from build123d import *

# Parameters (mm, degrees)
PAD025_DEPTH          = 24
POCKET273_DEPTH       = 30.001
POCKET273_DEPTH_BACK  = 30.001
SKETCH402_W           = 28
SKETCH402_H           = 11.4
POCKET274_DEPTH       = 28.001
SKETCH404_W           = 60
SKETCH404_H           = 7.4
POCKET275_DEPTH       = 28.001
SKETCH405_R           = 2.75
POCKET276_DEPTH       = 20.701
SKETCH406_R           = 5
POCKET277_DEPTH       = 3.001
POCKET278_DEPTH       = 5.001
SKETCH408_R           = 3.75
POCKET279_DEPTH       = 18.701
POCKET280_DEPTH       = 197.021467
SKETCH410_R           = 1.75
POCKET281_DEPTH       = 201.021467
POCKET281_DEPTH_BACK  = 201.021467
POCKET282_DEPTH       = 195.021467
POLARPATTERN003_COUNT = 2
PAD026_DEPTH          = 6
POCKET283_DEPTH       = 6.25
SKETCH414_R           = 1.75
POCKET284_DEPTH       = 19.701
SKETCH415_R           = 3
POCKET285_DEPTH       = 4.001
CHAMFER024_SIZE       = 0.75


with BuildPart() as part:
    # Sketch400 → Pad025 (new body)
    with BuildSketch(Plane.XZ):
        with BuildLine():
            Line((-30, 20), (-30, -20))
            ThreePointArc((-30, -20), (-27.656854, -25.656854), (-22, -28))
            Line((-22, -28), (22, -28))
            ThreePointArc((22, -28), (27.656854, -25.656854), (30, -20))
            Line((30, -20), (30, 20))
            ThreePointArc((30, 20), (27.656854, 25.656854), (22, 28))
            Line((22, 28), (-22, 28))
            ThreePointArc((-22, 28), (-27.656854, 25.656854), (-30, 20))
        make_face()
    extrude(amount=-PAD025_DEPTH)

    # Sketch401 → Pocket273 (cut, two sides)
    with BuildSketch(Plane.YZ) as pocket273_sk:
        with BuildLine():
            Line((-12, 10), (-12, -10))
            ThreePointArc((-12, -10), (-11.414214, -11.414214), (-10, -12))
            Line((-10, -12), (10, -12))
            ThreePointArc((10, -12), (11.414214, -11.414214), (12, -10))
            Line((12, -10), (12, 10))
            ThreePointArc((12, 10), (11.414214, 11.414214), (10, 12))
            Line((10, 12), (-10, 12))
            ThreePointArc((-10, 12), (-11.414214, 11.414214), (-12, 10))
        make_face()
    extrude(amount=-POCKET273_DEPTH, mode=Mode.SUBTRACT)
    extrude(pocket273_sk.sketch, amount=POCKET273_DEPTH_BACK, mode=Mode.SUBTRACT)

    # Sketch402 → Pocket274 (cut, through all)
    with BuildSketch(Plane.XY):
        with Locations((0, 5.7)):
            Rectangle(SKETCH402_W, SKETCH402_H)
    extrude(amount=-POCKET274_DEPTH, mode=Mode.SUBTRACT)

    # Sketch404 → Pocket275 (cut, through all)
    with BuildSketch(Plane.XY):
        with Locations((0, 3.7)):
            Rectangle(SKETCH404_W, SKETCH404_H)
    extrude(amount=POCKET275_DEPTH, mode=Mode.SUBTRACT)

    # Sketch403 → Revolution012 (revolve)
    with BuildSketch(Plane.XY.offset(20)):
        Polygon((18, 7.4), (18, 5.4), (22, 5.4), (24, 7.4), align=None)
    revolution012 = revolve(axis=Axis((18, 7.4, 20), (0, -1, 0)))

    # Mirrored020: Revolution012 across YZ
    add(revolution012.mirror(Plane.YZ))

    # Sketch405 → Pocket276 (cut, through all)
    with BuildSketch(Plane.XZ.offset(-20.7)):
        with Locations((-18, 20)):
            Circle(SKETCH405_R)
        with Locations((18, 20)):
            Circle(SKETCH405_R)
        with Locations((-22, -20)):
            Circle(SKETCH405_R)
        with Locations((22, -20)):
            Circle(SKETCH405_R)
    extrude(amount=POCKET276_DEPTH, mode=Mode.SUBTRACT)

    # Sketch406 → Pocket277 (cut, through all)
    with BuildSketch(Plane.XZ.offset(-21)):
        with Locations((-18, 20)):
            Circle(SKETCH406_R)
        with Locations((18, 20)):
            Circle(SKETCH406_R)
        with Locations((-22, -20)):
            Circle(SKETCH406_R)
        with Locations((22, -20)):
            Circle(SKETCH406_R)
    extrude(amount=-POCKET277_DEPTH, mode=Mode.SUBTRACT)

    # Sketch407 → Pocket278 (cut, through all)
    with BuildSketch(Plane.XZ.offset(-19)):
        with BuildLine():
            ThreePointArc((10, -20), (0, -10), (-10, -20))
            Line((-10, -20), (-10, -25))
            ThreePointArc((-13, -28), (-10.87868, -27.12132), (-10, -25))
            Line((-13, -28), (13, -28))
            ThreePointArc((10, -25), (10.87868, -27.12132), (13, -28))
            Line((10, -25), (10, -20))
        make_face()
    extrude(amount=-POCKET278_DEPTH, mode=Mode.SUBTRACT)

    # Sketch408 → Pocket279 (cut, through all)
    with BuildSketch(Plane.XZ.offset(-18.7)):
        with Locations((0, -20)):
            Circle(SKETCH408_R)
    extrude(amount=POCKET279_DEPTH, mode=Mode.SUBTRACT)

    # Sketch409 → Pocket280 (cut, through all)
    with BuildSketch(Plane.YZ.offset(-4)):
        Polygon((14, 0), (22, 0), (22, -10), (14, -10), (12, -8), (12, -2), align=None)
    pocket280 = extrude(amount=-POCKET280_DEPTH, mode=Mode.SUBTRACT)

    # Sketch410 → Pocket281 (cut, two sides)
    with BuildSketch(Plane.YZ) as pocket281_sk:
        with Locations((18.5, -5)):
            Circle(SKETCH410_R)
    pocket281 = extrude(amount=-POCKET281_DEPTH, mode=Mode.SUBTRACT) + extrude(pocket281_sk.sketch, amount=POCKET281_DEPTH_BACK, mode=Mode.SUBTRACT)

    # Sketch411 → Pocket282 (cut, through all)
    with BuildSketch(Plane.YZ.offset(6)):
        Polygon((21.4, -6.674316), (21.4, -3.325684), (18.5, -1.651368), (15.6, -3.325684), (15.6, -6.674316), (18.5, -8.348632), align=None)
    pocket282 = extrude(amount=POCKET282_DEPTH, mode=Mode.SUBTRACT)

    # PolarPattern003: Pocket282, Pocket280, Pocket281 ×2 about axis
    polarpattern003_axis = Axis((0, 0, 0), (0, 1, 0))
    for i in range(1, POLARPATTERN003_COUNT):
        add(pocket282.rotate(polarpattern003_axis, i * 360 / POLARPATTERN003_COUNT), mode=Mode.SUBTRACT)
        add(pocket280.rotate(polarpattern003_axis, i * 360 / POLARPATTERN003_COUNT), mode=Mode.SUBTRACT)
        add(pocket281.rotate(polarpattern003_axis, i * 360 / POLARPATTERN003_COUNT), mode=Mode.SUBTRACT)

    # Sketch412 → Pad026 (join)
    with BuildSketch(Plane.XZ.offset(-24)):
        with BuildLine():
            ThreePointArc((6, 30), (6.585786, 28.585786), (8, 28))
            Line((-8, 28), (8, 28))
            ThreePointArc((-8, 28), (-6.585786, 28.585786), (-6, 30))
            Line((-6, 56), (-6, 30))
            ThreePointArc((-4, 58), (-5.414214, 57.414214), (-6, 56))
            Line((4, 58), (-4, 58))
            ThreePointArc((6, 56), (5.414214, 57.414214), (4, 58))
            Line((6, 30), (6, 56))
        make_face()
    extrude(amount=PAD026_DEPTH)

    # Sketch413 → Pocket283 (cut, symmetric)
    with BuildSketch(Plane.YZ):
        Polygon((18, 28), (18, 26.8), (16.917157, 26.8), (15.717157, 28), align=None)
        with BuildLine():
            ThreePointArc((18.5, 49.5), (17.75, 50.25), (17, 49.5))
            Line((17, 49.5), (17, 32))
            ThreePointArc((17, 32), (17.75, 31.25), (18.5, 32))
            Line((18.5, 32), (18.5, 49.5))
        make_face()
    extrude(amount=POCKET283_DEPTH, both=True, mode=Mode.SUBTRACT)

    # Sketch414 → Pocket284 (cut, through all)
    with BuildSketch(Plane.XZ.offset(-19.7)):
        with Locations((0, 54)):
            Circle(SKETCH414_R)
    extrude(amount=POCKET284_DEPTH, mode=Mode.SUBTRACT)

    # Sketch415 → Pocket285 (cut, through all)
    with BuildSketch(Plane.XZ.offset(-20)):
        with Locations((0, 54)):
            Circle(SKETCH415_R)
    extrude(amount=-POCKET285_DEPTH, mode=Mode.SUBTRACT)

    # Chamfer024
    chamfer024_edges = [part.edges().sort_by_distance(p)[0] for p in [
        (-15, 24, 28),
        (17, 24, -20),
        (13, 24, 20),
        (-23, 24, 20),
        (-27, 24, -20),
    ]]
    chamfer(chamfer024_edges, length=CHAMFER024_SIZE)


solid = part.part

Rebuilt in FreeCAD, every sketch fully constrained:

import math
import FreeCAD as App
import Part
import Sketcher
Q = App.Units.Quantity


def edges_at(feature, points):
    """Names of the edges that pass closest to the given points."""
    edges = feature.Shape.Edges
    near = lambda p: min(range(len(edges)), key=lambda i: edges[i].distToShape(Part.Vertex(*p))[0])
    return sorted({f"Edge{near(p) + 1}" for p in points})


def add_polygon(sketch, points):
    """Adds a closed chain of lines whose ends are joined by coincident constraints."""
    first, n = sketch.GeometryCount, len(points)
    for a, b in zip(points, points[1:] + points[:1]):
        sketch.addGeometry(Part.LineSegment(App.Vector(*a, 0), App.Vector(*b, 0)), False)
    for i in range(n):
        sketch.addConstraint(Sketcher.Constraint("Coincident", first + i, 2, first + (i + 1) % n, 1))

doc = App.newDocument("Part")
body = doc.addObject("PartDesign::Body", "Body")

sketch1 = body.newObject("Sketcher::SketchObject", "Sketch")
sketch1.AttachmentSupport = (doc.getObject("XZ_Plane"), [""])
sketch1.MapMode = "FlatFace"
sketch1.addGeometry(Part.LineSegment(App.Vector(-30, 20, 0), App.Vector(-30, -20, 0)), False)
sketch1.addGeometry(Part.ArcOfCircle(Part.Circle(App.Vector(-21.999999, -19.999999, 0), App.Vector(0, 0, 1), 8.000001), math.radians(-179.999994), math.radians(-90.000006)), False)
sketch1.addGeometry(Part.LineSegment(App.Vector(-22, -28, 0), App.Vector(22, -28, 0)), False)
sketch1.addGeometry(Part.ArcOfCircle(Part.Circle(App.Vector(21.999999, -19.999999, 0), App.Vector(0, 0, 1), 8.000001), math.radians(-89.999994), math.radians(-0.000006)), False)
sketch1.addGeometry(Part.LineSegment(App.Vector(30, -20, 0), App.Vector(30, 20, 0)), False)
sketch1.addGeometry(Part.ArcOfCircle(Part.Circle(App.Vector(21.999999, 19.999999, 0), App.Vector(0, 0, 1), 8.000001), math.radians(0.000006), math.radians(89.999994)), False)
sketch1.addGeometry(Part.LineSegment(App.Vector(22, 28, 0), App.Vector(-22, 28, 0)), False)
sketch1.addGeometry(Part.ArcOfCircle(Part.Circle(App.Vector(-21.999999, 19.999999, 0), App.Vector(0, 0, 1), 8.000001), math.radians(90.000006), math.radians(179.999994)), False)
sketch1.addConstraint(Sketcher.Constraint("Tangent", 0, 2, 1, 1))
sketch1.addConstraint(Sketcher.Constraint("Tangent", 1, 2, 2, 1))
sketch1.addConstraint(Sketcher.Constraint("Tangent", 2, 2, 3, 1))
sketch1.addConstraint(Sketcher.Constraint("Tangent", 3, 2, 4, 1))
sketch1.addConstraint(Sketcher.Constraint("Tangent", 4, 2, 5, 1))
sketch1.addConstraint(Sketcher.Constraint("Tangent", 5, 2, 6, 1))
sketch1.addConstraint(Sketcher.Constraint("Tangent", 6, 2, 7, 1))
sketch1.addConstraint(Sketcher.Constraint("Tangent", 7, 2, 0, 1))
sketch1.addConstraint(Sketcher.Constraint("Vertical", 0))
sketch1.addConstraint(Sketcher.Constraint("Horizontal", 2))
sketch1.addConstraint(Sketcher.Constraint("Vertical", 4))
sketch1.addConstraint(Sketcher.Constraint("Horizontal", 6))
sketch1.addConstraint(Sketcher.Constraint("Equal", 1, 3))
sketch1.addConstraint(Sketcher.Constraint("Equal", 3, 5))
sketch1.addConstraint(Sketcher.Constraint("Equal", 5, 7))
sketch1.addConstraint(Sketcher.Constraint("Symmetric", 1, 3, 5, 3, -1, 1))
sketch1.addConstraint(Sketcher.Constraint("Radius", 1, Q("8.000001 mm")))
sketch1.addConstraint(Sketcher.Constraint("DistanceX", 2, 1, 2, 2, Q("44 mm")))
sketch1.addConstraint(Sketcher.Constraint("DistanceY", 0, 2, 0, 1, Q("40 mm")))
pad1 = body.newObject("PartDesign::Pad", "Pad")
pad1.Profile = sketch1
pad1.Length = 24
pad1.Reversed = True

sketch2 = body.newObject("Sketcher::SketchObject", "Sketch001")
sketch2.AttachmentSupport = (doc.getObject("YZ_Plane"), [""])
sketch2.MapMode = "FlatFace"
sketch2.addGeometry(Part.LineSegment(App.Vector(-12, 10, 0), App.Vector(-12, -10, 0)), False)
sketch2.addGeometry(Part.ArcOfCircle(Part.Circle(App.Vector(-10.000001, -10.000001, 0), App.Vector(0, 0, 1), 1.999999), math.radians(179.999957), math.radians(270.000043)), False)
sketch2.addGeometry(Part.LineSegment(App.Vector(-10, -12, 0), App.Vector(10, -12, 0)), False)
sketch2.addGeometry(Part.ArcOfCircle(Part.Circle(App.Vector(10.000001, -10.000001, 0), App.Vector(0, 0, 1), 1.999999), math.radians(-90.000043), math.radians(0.000043)), False)
sketch2.addGeometry(Part.LineSegment(App.Vector(12, -10, 0), App.Vector(12, 10, 0)), False)
sketch2.addGeometry(Part.ArcOfCircle(Part.Circle(App.Vector(10.000001, 10.000001, 0), App.Vector(0, 0, 1), 1.999999), math.radians(-0.000043), math.radians(90.000043)), False)
sketch2.addGeometry(Part.LineSegment(App.Vector(10, 12, 0), App.Vector(-10, 12, 0)), False)
sketch2.addGeometry(Part.ArcOfCircle(Part.Circle(App.Vector(-10.000001, 10.000001, 0), App.Vector(0, 0, 1), 1.999999), math.radians(89.999957), math.radians(180.000043)), False)
sketch2.addConstraint(Sketcher.Constraint("Tangent", 0, 2, 1, 1))
sketch2.addConstraint(Sketcher.Constraint("Tangent", 1, 2, 2, 1))
sketch2.addConstraint(Sketcher.Constraint("Tangent", 2, 2, 3, 1))
sketch2.addConstraint(Sketcher.Constraint("Tangent", 3, 2, 4, 1))
sketch2.addConstraint(Sketcher.Constraint("Tangent", 4, 2, 5, 1))
sketch2.addConstraint(Sketcher.Constraint("Tangent", 5, 2, 6, 1))
sketch2.addConstraint(Sketcher.Constraint("Tangent", 6, 2, 7, 1))
sketch2.addConstraint(Sketcher.Constraint("Tangent", 7, 2, 0, 1))
sketch2.addConstraint(Sketcher.Constraint("Vertical", 0))
sketch2.addConstraint(Sketcher.Constraint("Horizontal", 2))
sketch2.addConstraint(Sketcher.Constraint("Vertical", 4))
sketch2.addConstraint(Sketcher.Constraint("Horizontal", 6))
sketch2.addConstraint(Sketcher.Constraint("Equal", 1, 3))
sketch2.addConstraint(Sketcher.Constraint("Equal", 3, 5))
sketch2.addConstraint(Sketcher.Constraint("Equal", 5, 7))
sketch2.addConstraint(Sketcher.Constraint("Symmetric", 1, 3, 5, 3, -1, 1))
sketch2.addConstraint(Sketcher.Constraint("Equal", 6, 0))
sketch2.addConstraint(Sketcher.Constraint("Radius", 1, Q("1.999999 mm")))
sketch2.addConstraint(Sketcher.Constraint("DistanceX", 2, 1, 2, 2, Q("20 mm")))
pocket1 = body.newObject("PartDesign::Pocket", "Pocket")
pocket1.Profile = sketch2
pocket1.Type = "ThroughAll"
pocket1.Midplane = True

sketch3 = body.newObject("Sketcher::SketchObject", "Sketch002")
sketch3.AttachmentSupport = (doc.getObject("XY_Plane"), [""])
sketch3.MapMode = "FlatFace"
add_polygon(sketch3, [(-14, 11.4), (-14, 0), (14, 0), (14, 11.4)])
sketch3.addConstraint(Sketcher.Constraint("Vertical", 0))
sketch3.addConstraint(Sketcher.Constraint("Horizontal", 1))
sketch3.addConstraint(Sketcher.Constraint("Vertical", 2))
sketch3.addConstraint(Sketcher.Constraint("Horizontal", 3))
sketch3.addConstraint(Sketcher.Constraint("Symmetric", 0, 2, 1, 2, -1, 1))
sketch3.addConstraint(Sketcher.Constraint("DistanceX", 1, 1, 1, 2, Q("28 mm")))
sketch3.addConstraint(Sketcher.Constraint("DistanceY", 0, 2, 0, 1, Q("11.4 mm")))
pocket2 = body.newObject("PartDesign::Pocket", "Pocket001")
pocket2.Profile = sketch3
pocket2.Type = "ThroughAll"

sketch4 = body.newObject("Sketcher::SketchObject", "Sketch003")
sketch4.AttachmentSupport = (doc.getObject("XY_Plane"), [""])
sketch4.MapMode = "FlatFace"
add_polygon(sketch4, [(-30, 7.4), (-30, 0), (30, 0), (30, 7.4)])
sketch4.addConstraint(Sketcher.Constraint("Vertical", 0))
sketch4.addConstraint(Sketcher.Constraint("Horizontal", 1))
sketch4.addConstraint(Sketcher.Constraint("Vertical", 2))
sketch4.addConstraint(Sketcher.Constraint("Horizontal", 3))
sketch4.addConstraint(Sketcher.Constraint("Symmetric", 0, 2, 1, 2, -1, 1))
sketch4.addConstraint(Sketcher.Constraint("DistanceX", 1, 1, 1, 2, Q("60 mm")))
sketch4.addConstraint(Sketcher.Constraint("DistanceY", 0, 2, 0, 1, Q("7.4 mm")))
pocket3 = body.newObject("PartDesign::Pocket", "Pocket002")
pocket3.Profile = sketch4
pocket3.Type = "ThroughAll"
pocket3.Reversed = True

sketch5 = body.newObject("Sketcher::SketchObject", "Sketch004")
sketch5.AttachmentSupport = (doc.getObject("XY_Plane"), [""])
sketch5.MapMode = "FlatFace"
sketch5.AttachmentOffset = App.Placement(App.Vector(0, 0, 20), App.Rotation())
add_polygon(sketch5, [(18, 7.4), (18, 5.4), (22, 5.4), (24, 7.4)])
sketch5.addGeometry(Part.LineSegment(App.Vector(18, 7.4, 0), App.Vector(18, 5.4, 0)), True)
sketch5.addConstraint(Sketcher.Constraint("Vertical", 0))
sketch5.addConstraint(Sketcher.Constraint("Horizontal", 1))
sketch5.addConstraint(Sketcher.Constraint("Horizontal", 3))
sketch5.addConstraint(Sketcher.Constraint("Vertical", 4))
sketch5.addConstraint(Sketcher.Constraint("Coincident", 4, 1, 3, 2))
sketch5.addConstraint(Sketcher.Constraint("Horizontal", 1, 2, 4, 2))
sketch5.addConstraint(Sketcher.Constraint("DistanceX", 1, 1, 1, 2, Q("4 mm")))
sketch5.addConstraint(Sketcher.Constraint("DistanceX", 3, 2, 3, 1, Q("6 mm")))
sketch5.addConstraint(Sketcher.Constraint("DistanceY", 0, 2, 0, 1, Q("2 mm")))
sketch5.addConstraint(Sketcher.Constraint("DistanceX", -1, 1, 0, 2, Q("18 mm")))
sketch5.addConstraint(Sketcher.Constraint("DistanceY", -1, 1, 0, 2, Q("5.4 mm")))
revolution = body.newObject("PartDesign::Revolution", "Revolution")
revolution.Profile = sketch5
revolution.ReferenceAxis = (sketch5, ["Axis0"])
revolution.Angle = 360
doc.recompute()

mirrored = body.newObject("PartDesign::Mirrored", "Mirrored")
mirrored.Originals = [revolution]
mirrored.MirrorPlane = (doc.getObject("YZ_Plane"), [""])
body.Tip = mirrored

sketch6 = body.newObject("Sketcher::SketchObject", "Sketch005")
sketch6.AttachmentSupport = (doc.getObject("XZ_Plane"), [""])
sketch6.MapMode = "FlatFace"
sketch6.AttachmentOffset = App.Placement(App.Vector(0, 0, -20.7), App.Rotation())
sketch6.addGeometry(Part.Circle(App.Vector(-18, 20, 0), App.Vector(0, 0, 1), 2.75), False)
sketch6.addGeometry(Part.Circle(App.Vector(18, 20, 0), App.Vector(0, 0, 1), 2.75), False)
sketch6.addGeometry(Part.Circle(App.Vector(-22, -20, 0), App.Vector(0, 0, 1), 2.75), False)
sketch6.addGeometry(Part.Circle(App.Vector(22, -20, 0), App.Vector(0, 0, 1), 2.75), False)
sketch6.addConstraint(Sketcher.Constraint("Equal", 0, 1))
sketch6.addConstraint(Sketcher.Constraint("Equal", 1, 2))
sketch6.addConstraint(Sketcher.Constraint("Equal", 2, 3))
sketch6.addConstraint(Sketcher.Constraint("Symmetric", 0, 3, 1, 3, -2))
sketch6.addConstraint(Sketcher.Constraint("Symmetric", 2, 3, 3, 3, -2))
sketch6.addConstraint(Sketcher.Constraint("Diameter", 0, Q("5.5 mm")))
sketch6.addConstraint(Sketcher.Constraint("DistanceX", 0, 3, -1, 1, Q("18 mm")))
sketch6.addConstraint(Sketcher.Constraint("DistanceY", -1, 1, 0, 3, Q("20 mm")))
sketch6.addConstraint(Sketcher.Constraint("DistanceX", 2, 3, -1, 1, Q("22 mm")))
sketch6.addConstraint(Sketcher.Constraint("DistanceY", 2, 3, -1, 1, Q("20 mm")))
pocket4 = body.newObject("PartDesign::Pocket", "Pocket003")
pocket4.Profile = sketch6
pocket4.Type = "ThroughAll"
pocket4.Reversed = True

sketch7 = body.newObject("Sketcher::SketchObject", "Sketch006")
sketch7.AttachmentSupport = (doc.getObject("XZ_Plane"), [""])
sketch7.MapMode = "FlatFace"
sketch7.AttachmentOffset = App.Placement(App.Vector(0, 0, -21), App.Rotation())
sketch7.addGeometry(Part.Circle(App.Vector(-18, 20, 0), App.Vector(0, 0, 1), 5), False)
sketch7.addGeometry(Part.Circle(App.Vector(18, 20, 0), App.Vector(0, 0, 1), 5), False)
sketch7.addGeometry(Part.Circle(App.Vector(-22, -20, 0), App.Vector(0, 0, 1), 5), False)
sketch7.addGeometry(Part.Circle(App.Vector(22, -20, 0), App.Vector(0, 0, 1), 5), False)
sketch7.addConstraint(Sketcher.Constraint("Equal", 0, 1))
sketch7.addConstraint(Sketcher.Constraint("Equal", 1, 2))
sketch7.addConstraint(Sketcher.Constraint("Equal", 2, 3))
sketch7.addConstraint(Sketcher.Constraint("Symmetric", 0, 3, 1, 3, -2))
sketch7.addConstraint(Sketcher.Constraint("Symmetric", 2, 3, 3, 3, -2))
sketch7.addConstraint(Sketcher.Constraint("Diameter", 0, Q("10 mm")))
sketch7.addConstraint(Sketcher.Constraint("DistanceX", 0, 3, -1, 1, Q("18 mm")))
sketch7.addConstraint(Sketcher.Constraint("DistanceY", -1, 1, 0, 3, Q("20 mm")))
sketch7.addConstraint(Sketcher.Constraint("DistanceX", 2, 3, -1, 1, Q("22 mm")))
sketch7.addConstraint(Sketcher.Constraint("DistanceY", 2, 3, -1, 1, Q("20 mm")))
pocket5 = body.newObject("PartDesign::Pocket", "Pocket004")
pocket5.Profile = sketch7
pocket5.Type = "ThroughAll"

sketch8 = body.newObject("Sketcher::SketchObject", "Sketch007")
sketch8.AttachmentSupport = (doc.getObject("XZ_Plane"), [""])
sketch8.MapMode = "FlatFace"
sketch8.AttachmentOffset = App.Placement(App.Vector(0, 0, -19), App.Rotation())
sketch8.addGeometry(Part.ArcOfCircle(Part.Circle(App.Vector(0, -20, 0), App.Vector(0, 0, 1), 10), math.radians(0), math.radians(180)), False)
sketch8.addGeometry(Part.LineSegment(App.Vector(-10, -20, 0), App.Vector(-10, -25, 0)), False)
sketch8.addGeometry(Part.ArcOfCircle(Part.Circle(App.Vector(-13.000001, -24.999999, 0), App.Vector(0, 0, 1), 3.000001), math.radians(-89.999978), math.radians(-0.000022)), False)
sketch8.addGeometry(Part.LineSegment(App.Vector(-13, -28, 0), App.Vector(13, -28, 0)), False)
sketch8.addGeometry(Part.ArcOfCircle(Part.Circle(App.Vector(13.000001, -24.999999, 0), App.Vector(0, 0, 1), 3.000001), math.radians(-179.999978), math.radians(-90.000022)), False)
sketch8.addGeometry(Part.LineSegment(App.Vector(10, -25, 0), App.Vector(10, -20, 0)), False)
sketch8.addConstraint(Sketcher.Constraint("Tangent", 0, 2, 1, 1))
sketch8.addConstraint(Sketcher.Constraint("Tangent", 1, 2, 2, 2))
sketch8.addConstraint(Sketcher.Constraint("Tangent", 2, 1, 3, 1))
sketch8.addConstraint(Sketcher.Constraint("Tangent", 3, 2, 4, 2))
sketch8.addConstraint(Sketcher.Constraint("Tangent", 4, 1, 5, 1))
sketch8.addConstraint(Sketcher.Constraint("Tangent", 5, 2, 0, 1))
sketch8.addConstraint(Sketcher.Constraint("Vertical", 1))
sketch8.addConstraint(Sketcher.Constraint("Horizontal", 3))
sketch8.addConstraint(Sketcher.Constraint("Vertical", 5))
sketch8.addConstraint(Sketcher.Constraint("Equal", 2, 4))
sketch8.addConstraint(Sketcher.Constraint("PointOnObject", 0, 3, -2))
sketch8.addConstraint(Sketcher.Constraint("Radius", 0, Q("10 mm")))
sketch8.addConstraint(Sketcher.Constraint("Radius", 2, Q("3.000001 mm")))
sketch8.addConstraint(Sketcher.Constraint("DistanceY", 1, 2, 1, 1, Q("5 mm")))
sketch8.addConstraint(Sketcher.Constraint("DistanceY", 0, 3, -1, 1, Q("20 mm")))
pocket6 = body.newObject("PartDesign::Pocket", "Pocket005")
pocket6.Profile = sketch8
pocket6.Type = "ThroughAll"

sketch9 = body.newObject("Sketcher::SketchObject", "Sketch008")
sketch9.AttachmentSupport = (doc.getObject("XZ_Plane"), [""])
sketch9.MapMode = "FlatFace"
sketch9.AttachmentOffset = App.Placement(App.Vector(0, 0, -18.7), App.Rotation())
sketch9.addGeometry(Part.Circle(App.Vector(0, -20, 0), App.Vector(0, 0, 1), 3.75), False)
sketch9.addConstraint(Sketcher.Constraint("PointOnObject", 0, 3, -2))
sketch9.addConstraint(Sketcher.Constraint("Diameter", 0, Q("7.5 mm")))
sketch9.addConstraint(Sketcher.Constraint("DistanceY", 0, 3, -1, 1, Q("20 mm")))
pocket7 = body.newObject("PartDesign::Pocket", "Pocket006")
pocket7.Profile = sketch9
pocket7.Type = "ThroughAll"
pocket7.Reversed = True

sketch10 = body.newObject("Sketcher::SketchObject", "Sketch009")
sketch10.AttachmentSupport = (doc.getObject("YZ_Plane"), [""])
sketch10.MapMode = "FlatFace"
sketch10.AttachmentOffset = App.Placement(App.Vector(0, 0, -4), App.Rotation())
add_polygon(sketch10, [(22, 0), (14, 0), (12, -2), (12, -8), (14, -10), (22, -10)])
sketch10.addConstraint(Sketcher.Constraint("Horizontal", 0))
sketch10.addConstraint(Sketcher.Constraint("Vertical", 2))
sketch10.addConstraint(Sketcher.Constraint("Horizontal", 4))
sketch10.addConstraint(Sketcher.Constraint("Vertical", 5))
sketch10.addConstraint(Sketcher.Constraint("PointOnObject", 0, 2, -1))
sketch10.addConstraint(Sketcher.Constraint("Perpendicular", 1, 3))
sketch10.addConstraint(Sketcher.Constraint("Vertical", 0, 2, 3, 2))
sketch10.addConstraint(Sketcher.Constraint("Equal", 1, 3))
sketch10.addConstraint(Sketcher.Constraint("DistanceX", 0, 2, 0, 1, Q("8 mm")))
sketch10.addConstraint(Sketcher.Constraint("DistanceY", 2, 2, 2, 1, Q("6 mm")))
sketch10.addConstraint(Sketcher.Constraint("DistanceY", 5, 1, 5, 2, Q("10 mm")))
sketch10.addConstraint(Sketcher.Constraint("DistanceX", -1, 1, 0, 2, Q("14 mm")))
pocket8 = body.newObject("PartDesign::Pocket", "Pocket007")
pocket8.Profile = sketch10
pocket8.Type = "ThroughAll"

sketch11 = body.newObject("Sketcher::SketchObject", "Sketch010")
sketch11.AttachmentSupport = (doc.getObject("YZ_Plane"), [""])
sketch11.MapMode = "FlatFace"
sketch11.addGeometry(Part.Circle(App.Vector(18.5, -5, 0), App.Vector(0, 0, 1), 1.75), False)
sketch11.addConstraint(Sketcher.Constraint("Diameter", 0, Q("3.5 mm")))
sketch11.addConstraint(Sketcher.Constraint("DistanceY", 0, 3, -1, 1, Q("5 mm")))
sketch11.addConstraint(Sketcher.Constraint("DistanceX", -1, 1, 0, 3, Q("18.5 mm")))
pocket9 = body.newObject("PartDesign::Pocket", "Pocket008")
pocket9.Profile = sketch11
pocket9.Type = "ThroughAll"
pocket9.Midplane = True

sketch12 = body.newObject("Sketcher::SketchObject", "Sketch011")
sketch12.AttachmentSupport = (doc.getObject("YZ_Plane"), [""])
sketch12.MapMode = "FlatFace"
sketch12.AttachmentOffset = App.Placement(App.Vector(0, 0, 6), App.Rotation())
add_polygon(sketch12, [(21.4, -6.674316), (21.4, -3.325684), (18.5, -1.651368), (15.6, -3.325684), (15.6, -6.674316), (18.5, -8.348632)])
sketch12.addConstraint(Sketcher.Constraint("Vertical", 0))
sketch12.addConstraint(Sketcher.Constraint("Vertical", 3))
sketch12.addConstraint(Sketcher.Constraint("Parallel", 1, 4))
sketch12.addConstraint(Sketcher.Constraint("Parallel", 2, 5))
sketch12.addConstraint(Sketcher.Constraint("Horizontal", 0, 2, 2, 2))
sketch12.addConstraint(Sketcher.Constraint("Horizontal", 3, 2, 5, 2))
sketch12.addConstraint(Sketcher.Constraint("Vertical", 1, 2, 4, 2))
sketch12.addConstraint(Sketcher.Constraint("Angle", 1, Q("149.999997 deg")))
sketch12.addConstraint(Sketcher.Constraint("DistanceX", -1, 1, 0, 2, Q("21.4 mm")))
sketch12.addConstraint(Sketcher.Constraint("DistanceX", -1, 1, 1, 2, Q("18.5 mm")))
sketch12.addConstraint(Sketcher.Constraint("DistanceY", 0, 1, 0, 2, Q("3.348632 mm")))
sketch12.addConstraint(Sketcher.Constraint("DistanceY", 0, 2, -1, 1, Q("3.325684 mm")))
pocket10 = body.newObject("PartDesign::Pocket", "Pocket009")
pocket10.Profile = sketch12
pocket10.Type = "ThroughAll"
pocket10.Reversed = True
doc.recompute()

polarpattern = body.newObject("PartDesign::PolarPattern", "PolarPattern")
polarpattern.Originals = [pocket10, pocket8, pocket9]
polarpattern.Axis = (doc.getObject("Y_Axis"), [""])
polarpattern.Angle = 360
polarpattern.Occurrences = 2
body.Tip = polarpattern

sketch13 = body.newObject("Sketcher::SketchObject", "Sketch012")
sketch13.AttachmentSupport = (doc.getObject("XZ_Plane"), [""])
sketch13.MapMode = "FlatFace"
sketch13.AttachmentOffset = App.Placement(App.Vector(0, 0, -24), App.Rotation())
sketch13.addGeometry(Part.ArcOfCircle(Part.Circle(App.Vector(7.999999, 29.999999, 0), App.Vector(0, 0, 1), 1.999999), math.radians(179.999957), math.radians(270.000043)), False)
sketch13.addGeometry(Part.LineSegment(App.Vector(6, 30, 0), App.Vector(6, 56, 0)), False)
sketch13.addGeometry(Part.ArcOfCircle(Part.Circle(App.Vector(4.000001, 56.000001, 0), App.Vector(0, 0, 1), 1.999999), math.radians(-0.000043), math.radians(90.000043)), False)
sketch13.addGeometry(Part.LineSegment(App.Vector(4, 58, 0), App.Vector(-4, 58, 0)), False)
sketch13.addGeometry(Part.ArcOfCircle(Part.Circle(App.Vector(-4.000001, 56.000001, 0), App.Vector(0, 0, 1), 1.999999), math.radians(89.999957), math.radians(180.000043)), False)
sketch13.addGeometry(Part.LineSegment(App.Vector(-6, 56, 0), App.Vector(-6, 30, 0)), False)
sketch13.addGeometry(Part.ArcOfCircle(Part.Circle(App.Vector(-7.999999, 29.999999, 0), App.Vector(0, 0, 1), 1.999999), math.radians(-90.000043), math.radians(0.000043)), False)
sketch13.addGeometry(Part.LineSegment(App.Vector(-8, 28, 0), App.Vector(8, 28, 0)), False)
sketch13.addConstraint(Sketcher.Constraint("Tangent", 0, 1, 1, 1))
sketch13.addConstraint(Sketcher.Constraint("Tangent", 1, 2, 2, 1))
sketch13.addConstraint(Sketcher.Constraint("Tangent", 2, 2, 3, 1))
sketch13.addConstraint(Sketcher.Constraint("Tangent", 3, 2, 4, 1))
sketch13.addConstraint(Sketcher.Constraint("Tangent", 4, 2, 5, 1))
sketch13.addConstraint(Sketcher.Constraint("Tangent", 5, 2, 6, 2))
sketch13.addConstraint(Sketcher.Constraint("Tangent", 6, 1, 7, 1))
sketch13.addConstraint(Sketcher.Constraint("Tangent", 7, 2, 0, 2))
sketch13.addConstraint(Sketcher.Constraint("Vertical", 1))
sketch13.addConstraint(Sketcher.Constraint("Horizontal", 3))
sketch13.addConstraint(Sketcher.Constraint("Vertical", 5))
sketch13.addConstraint(Sketcher.Constraint("Horizontal", 7))
sketch13.addConstraint(Sketcher.Constraint("Equal", 0, 2))
sketch13.addConstraint(Sketcher.Constraint("Equal", 2, 4))
sketch13.addConstraint(Sketcher.Constraint("Equal", 4, 6))
sketch13.addConstraint(Sketcher.Constraint("Radius", 0, Q("1.999999 mm")))
sketch13.addConstraint(Sketcher.Constraint("DistanceX", 3, 2, 3, 1, Q("8 mm")))
sketch13.addConstraint(Sketcher.Constraint("DistanceY", 1, 1, 1, 2, Q("26 mm")))
sketch13.addConstraint(Sketcher.Constraint("DistanceX", -1, 1, 0, 3, Q("7.999999 mm")))
sketch13.addConstraint(Sketcher.Constraint("DistanceY", -1, 1, 0, 3, Q("29.999999 mm")))
pad2 = body.newObject("PartDesign::Pad", "Pad001")
pad2.Profile = sketch13
pad2.Length = 6

sketch14 = body.newObject("Sketcher::SketchObject", "Sketch013")
sketch14.AttachmentSupport = (doc.getObject("YZ_Plane"), [""])
sketch14.MapMode = "FlatFace"
add_polygon(sketch14, [(18, 26.8), (18, 28), (15.717157, 28), (16.917157, 26.8)])
sketch14.addGeometry(Part.ArcOfCircle(Part.Circle(App.Vector(17.75, 49.5, 0), App.Vector(0, 0, 1), 0.75), math.radians(0), math.radians(180)), False)
sketch14.addGeometry(Part.LineSegment(App.Vector(17, 49.5, 0), App.Vector(17, 32, 0)), False)
sketch14.addGeometry(Part.ArcOfCircle(Part.Circle(App.Vector(17.75, 32, 0), App.Vector(0, 0, 1), 0.75), math.radians(180), math.radians(360)), False)
sketch14.addGeometry(Part.LineSegment(App.Vector(18.5, 32, 0), App.Vector(18.5, 49.5, 0)), False)
sketch14.addConstraint(Sketcher.Constraint("Tangent", 4, 2, 5, 1))
sketch14.addConstraint(Sketcher.Constraint("Tangent", 5, 2, 6, 1))
sketch14.addConstraint(Sketcher.Constraint("Tangent", 6, 2, 7, 1))
sketch14.addConstraint(Sketcher.Constraint("Tangent", 7, 2, 4, 1))
sketch14.addConstraint(Sketcher.Constraint("Vertical", 0))
sketch14.addConstraint(Sketcher.Constraint("Horizontal", 1))
sketch14.addConstraint(Sketcher.Constraint("Horizontal", 3))
sketch14.addConstraint(Sketcher.Constraint("Vertical", 5))
sketch14.addConstraint(Sketcher.Constraint("Vertical", 7))
sketch14.addConstraint(Sketcher.Constraint("Angle", 2, Q("-45 deg")))
sketch14.addConstraint(Sketcher.Constraint("Radius", 4, Q("0.75 mm")))
sketch14.addConstraint(Sketcher.Constraint("DistanceY", 0, 1, 0, 2, Q("1.2 mm")))
sketch14.addConstraint(Sketcher.Constraint("DistanceY", 5, 2, 5, 1, Q("17.5 mm")))
sketch14.addConstraint(Sketcher.Constraint("DistanceY", -1, 1, 6, 3, Q("32 mm")))
sketch14.addConstraint(Sketcher.Constraint("DistanceX", -1, 1, 0, 2, Q("18 mm")))
sketch14.addConstraint(Sketcher.Constraint("DistanceY", -1, 1, 0, 2, Q("28 mm")))
sketch14.addConstraint(Sketcher.Constraint("DistanceX", -1, 1, 4, 2, Q("17 mm")))
sketch14.addConstraint(Sketcher.Constraint("DistanceX", 1, 2, 1, 1, Q("2.282843 mm")))
pocket11 = body.newObject("PartDesign::Pocket", "Pocket010")
pocket11.Profile = sketch14
pocket11.Length = 12.5
pocket11.Midplane = True

sketch15 = body.newObject("Sketcher::SketchObject", "Sketch014")
sketch15.AttachmentSupport = (doc.getObject("XZ_Plane"), [""])
sketch15.MapMode = "FlatFace"
sketch15.AttachmentOffset = App.Placement(App.Vector(0, 0, -19.7), App.Rotation())
sketch15.addGeometry(Part.Circle(App.Vector(0, 54, 0), App.Vector(0, 0, 1), 1.75), False)
sketch15.addConstraint(Sketcher.Constraint("PointOnObject", 0, 3, -2))
sketch15.addConstraint(Sketcher.Constraint("Diameter", 0, Q("3.5 mm")))
sketch15.addConstraint(Sketcher.Constraint("DistanceY", -1, 1, 0, 3, Q("54 mm")))
pocket12 = body.newObject("PartDesign::Pocket", "Pocket011")
pocket12.Profile = sketch15
pocket12.Type = "ThroughAll"
pocket12.Reversed = True

sketch16 = body.newObject("Sketcher::SketchObject", "Sketch015")
sketch16.AttachmentSupport = (doc.getObject("XZ_Plane"), [""])
sketch16.MapMode = "FlatFace"
sketch16.AttachmentOffset = App.Placement(App.Vector(0, 0, -20), App.Rotation())
sketch16.addGeometry(Part.Circle(App.Vector(0, 54, 0), App.Vector(0, 0, 1), 3), False)
sketch16.addConstraint(Sketcher.Constraint("PointOnObject", 0, 3, -2))
sketch16.addConstraint(Sketcher.Constraint("Diameter", 0, Q("6 mm")))
sketch16.addConstraint(Sketcher.Constraint("DistanceY", -1, 1, 0, 3, Q("54 mm")))
pocket13 = body.newObject("PartDesign::Pocket", "Pocket012")
pocket13.Profile = sketch16
pocket13.Type = "ThroughAll"
doc.recompute()

chamfer = body.newObject("PartDesign::Chamfer", "Chamfer")
chamfer.Base = (pocket13, edges_at(pocket13, [
    (-15, 24, 28),
    (17, 24, -20),
    (13, 24, 20),
    (-23, 24, 20),
    (-27, 24, -20),
]))
chamfer.Size = 0.75

doc.recompute()
